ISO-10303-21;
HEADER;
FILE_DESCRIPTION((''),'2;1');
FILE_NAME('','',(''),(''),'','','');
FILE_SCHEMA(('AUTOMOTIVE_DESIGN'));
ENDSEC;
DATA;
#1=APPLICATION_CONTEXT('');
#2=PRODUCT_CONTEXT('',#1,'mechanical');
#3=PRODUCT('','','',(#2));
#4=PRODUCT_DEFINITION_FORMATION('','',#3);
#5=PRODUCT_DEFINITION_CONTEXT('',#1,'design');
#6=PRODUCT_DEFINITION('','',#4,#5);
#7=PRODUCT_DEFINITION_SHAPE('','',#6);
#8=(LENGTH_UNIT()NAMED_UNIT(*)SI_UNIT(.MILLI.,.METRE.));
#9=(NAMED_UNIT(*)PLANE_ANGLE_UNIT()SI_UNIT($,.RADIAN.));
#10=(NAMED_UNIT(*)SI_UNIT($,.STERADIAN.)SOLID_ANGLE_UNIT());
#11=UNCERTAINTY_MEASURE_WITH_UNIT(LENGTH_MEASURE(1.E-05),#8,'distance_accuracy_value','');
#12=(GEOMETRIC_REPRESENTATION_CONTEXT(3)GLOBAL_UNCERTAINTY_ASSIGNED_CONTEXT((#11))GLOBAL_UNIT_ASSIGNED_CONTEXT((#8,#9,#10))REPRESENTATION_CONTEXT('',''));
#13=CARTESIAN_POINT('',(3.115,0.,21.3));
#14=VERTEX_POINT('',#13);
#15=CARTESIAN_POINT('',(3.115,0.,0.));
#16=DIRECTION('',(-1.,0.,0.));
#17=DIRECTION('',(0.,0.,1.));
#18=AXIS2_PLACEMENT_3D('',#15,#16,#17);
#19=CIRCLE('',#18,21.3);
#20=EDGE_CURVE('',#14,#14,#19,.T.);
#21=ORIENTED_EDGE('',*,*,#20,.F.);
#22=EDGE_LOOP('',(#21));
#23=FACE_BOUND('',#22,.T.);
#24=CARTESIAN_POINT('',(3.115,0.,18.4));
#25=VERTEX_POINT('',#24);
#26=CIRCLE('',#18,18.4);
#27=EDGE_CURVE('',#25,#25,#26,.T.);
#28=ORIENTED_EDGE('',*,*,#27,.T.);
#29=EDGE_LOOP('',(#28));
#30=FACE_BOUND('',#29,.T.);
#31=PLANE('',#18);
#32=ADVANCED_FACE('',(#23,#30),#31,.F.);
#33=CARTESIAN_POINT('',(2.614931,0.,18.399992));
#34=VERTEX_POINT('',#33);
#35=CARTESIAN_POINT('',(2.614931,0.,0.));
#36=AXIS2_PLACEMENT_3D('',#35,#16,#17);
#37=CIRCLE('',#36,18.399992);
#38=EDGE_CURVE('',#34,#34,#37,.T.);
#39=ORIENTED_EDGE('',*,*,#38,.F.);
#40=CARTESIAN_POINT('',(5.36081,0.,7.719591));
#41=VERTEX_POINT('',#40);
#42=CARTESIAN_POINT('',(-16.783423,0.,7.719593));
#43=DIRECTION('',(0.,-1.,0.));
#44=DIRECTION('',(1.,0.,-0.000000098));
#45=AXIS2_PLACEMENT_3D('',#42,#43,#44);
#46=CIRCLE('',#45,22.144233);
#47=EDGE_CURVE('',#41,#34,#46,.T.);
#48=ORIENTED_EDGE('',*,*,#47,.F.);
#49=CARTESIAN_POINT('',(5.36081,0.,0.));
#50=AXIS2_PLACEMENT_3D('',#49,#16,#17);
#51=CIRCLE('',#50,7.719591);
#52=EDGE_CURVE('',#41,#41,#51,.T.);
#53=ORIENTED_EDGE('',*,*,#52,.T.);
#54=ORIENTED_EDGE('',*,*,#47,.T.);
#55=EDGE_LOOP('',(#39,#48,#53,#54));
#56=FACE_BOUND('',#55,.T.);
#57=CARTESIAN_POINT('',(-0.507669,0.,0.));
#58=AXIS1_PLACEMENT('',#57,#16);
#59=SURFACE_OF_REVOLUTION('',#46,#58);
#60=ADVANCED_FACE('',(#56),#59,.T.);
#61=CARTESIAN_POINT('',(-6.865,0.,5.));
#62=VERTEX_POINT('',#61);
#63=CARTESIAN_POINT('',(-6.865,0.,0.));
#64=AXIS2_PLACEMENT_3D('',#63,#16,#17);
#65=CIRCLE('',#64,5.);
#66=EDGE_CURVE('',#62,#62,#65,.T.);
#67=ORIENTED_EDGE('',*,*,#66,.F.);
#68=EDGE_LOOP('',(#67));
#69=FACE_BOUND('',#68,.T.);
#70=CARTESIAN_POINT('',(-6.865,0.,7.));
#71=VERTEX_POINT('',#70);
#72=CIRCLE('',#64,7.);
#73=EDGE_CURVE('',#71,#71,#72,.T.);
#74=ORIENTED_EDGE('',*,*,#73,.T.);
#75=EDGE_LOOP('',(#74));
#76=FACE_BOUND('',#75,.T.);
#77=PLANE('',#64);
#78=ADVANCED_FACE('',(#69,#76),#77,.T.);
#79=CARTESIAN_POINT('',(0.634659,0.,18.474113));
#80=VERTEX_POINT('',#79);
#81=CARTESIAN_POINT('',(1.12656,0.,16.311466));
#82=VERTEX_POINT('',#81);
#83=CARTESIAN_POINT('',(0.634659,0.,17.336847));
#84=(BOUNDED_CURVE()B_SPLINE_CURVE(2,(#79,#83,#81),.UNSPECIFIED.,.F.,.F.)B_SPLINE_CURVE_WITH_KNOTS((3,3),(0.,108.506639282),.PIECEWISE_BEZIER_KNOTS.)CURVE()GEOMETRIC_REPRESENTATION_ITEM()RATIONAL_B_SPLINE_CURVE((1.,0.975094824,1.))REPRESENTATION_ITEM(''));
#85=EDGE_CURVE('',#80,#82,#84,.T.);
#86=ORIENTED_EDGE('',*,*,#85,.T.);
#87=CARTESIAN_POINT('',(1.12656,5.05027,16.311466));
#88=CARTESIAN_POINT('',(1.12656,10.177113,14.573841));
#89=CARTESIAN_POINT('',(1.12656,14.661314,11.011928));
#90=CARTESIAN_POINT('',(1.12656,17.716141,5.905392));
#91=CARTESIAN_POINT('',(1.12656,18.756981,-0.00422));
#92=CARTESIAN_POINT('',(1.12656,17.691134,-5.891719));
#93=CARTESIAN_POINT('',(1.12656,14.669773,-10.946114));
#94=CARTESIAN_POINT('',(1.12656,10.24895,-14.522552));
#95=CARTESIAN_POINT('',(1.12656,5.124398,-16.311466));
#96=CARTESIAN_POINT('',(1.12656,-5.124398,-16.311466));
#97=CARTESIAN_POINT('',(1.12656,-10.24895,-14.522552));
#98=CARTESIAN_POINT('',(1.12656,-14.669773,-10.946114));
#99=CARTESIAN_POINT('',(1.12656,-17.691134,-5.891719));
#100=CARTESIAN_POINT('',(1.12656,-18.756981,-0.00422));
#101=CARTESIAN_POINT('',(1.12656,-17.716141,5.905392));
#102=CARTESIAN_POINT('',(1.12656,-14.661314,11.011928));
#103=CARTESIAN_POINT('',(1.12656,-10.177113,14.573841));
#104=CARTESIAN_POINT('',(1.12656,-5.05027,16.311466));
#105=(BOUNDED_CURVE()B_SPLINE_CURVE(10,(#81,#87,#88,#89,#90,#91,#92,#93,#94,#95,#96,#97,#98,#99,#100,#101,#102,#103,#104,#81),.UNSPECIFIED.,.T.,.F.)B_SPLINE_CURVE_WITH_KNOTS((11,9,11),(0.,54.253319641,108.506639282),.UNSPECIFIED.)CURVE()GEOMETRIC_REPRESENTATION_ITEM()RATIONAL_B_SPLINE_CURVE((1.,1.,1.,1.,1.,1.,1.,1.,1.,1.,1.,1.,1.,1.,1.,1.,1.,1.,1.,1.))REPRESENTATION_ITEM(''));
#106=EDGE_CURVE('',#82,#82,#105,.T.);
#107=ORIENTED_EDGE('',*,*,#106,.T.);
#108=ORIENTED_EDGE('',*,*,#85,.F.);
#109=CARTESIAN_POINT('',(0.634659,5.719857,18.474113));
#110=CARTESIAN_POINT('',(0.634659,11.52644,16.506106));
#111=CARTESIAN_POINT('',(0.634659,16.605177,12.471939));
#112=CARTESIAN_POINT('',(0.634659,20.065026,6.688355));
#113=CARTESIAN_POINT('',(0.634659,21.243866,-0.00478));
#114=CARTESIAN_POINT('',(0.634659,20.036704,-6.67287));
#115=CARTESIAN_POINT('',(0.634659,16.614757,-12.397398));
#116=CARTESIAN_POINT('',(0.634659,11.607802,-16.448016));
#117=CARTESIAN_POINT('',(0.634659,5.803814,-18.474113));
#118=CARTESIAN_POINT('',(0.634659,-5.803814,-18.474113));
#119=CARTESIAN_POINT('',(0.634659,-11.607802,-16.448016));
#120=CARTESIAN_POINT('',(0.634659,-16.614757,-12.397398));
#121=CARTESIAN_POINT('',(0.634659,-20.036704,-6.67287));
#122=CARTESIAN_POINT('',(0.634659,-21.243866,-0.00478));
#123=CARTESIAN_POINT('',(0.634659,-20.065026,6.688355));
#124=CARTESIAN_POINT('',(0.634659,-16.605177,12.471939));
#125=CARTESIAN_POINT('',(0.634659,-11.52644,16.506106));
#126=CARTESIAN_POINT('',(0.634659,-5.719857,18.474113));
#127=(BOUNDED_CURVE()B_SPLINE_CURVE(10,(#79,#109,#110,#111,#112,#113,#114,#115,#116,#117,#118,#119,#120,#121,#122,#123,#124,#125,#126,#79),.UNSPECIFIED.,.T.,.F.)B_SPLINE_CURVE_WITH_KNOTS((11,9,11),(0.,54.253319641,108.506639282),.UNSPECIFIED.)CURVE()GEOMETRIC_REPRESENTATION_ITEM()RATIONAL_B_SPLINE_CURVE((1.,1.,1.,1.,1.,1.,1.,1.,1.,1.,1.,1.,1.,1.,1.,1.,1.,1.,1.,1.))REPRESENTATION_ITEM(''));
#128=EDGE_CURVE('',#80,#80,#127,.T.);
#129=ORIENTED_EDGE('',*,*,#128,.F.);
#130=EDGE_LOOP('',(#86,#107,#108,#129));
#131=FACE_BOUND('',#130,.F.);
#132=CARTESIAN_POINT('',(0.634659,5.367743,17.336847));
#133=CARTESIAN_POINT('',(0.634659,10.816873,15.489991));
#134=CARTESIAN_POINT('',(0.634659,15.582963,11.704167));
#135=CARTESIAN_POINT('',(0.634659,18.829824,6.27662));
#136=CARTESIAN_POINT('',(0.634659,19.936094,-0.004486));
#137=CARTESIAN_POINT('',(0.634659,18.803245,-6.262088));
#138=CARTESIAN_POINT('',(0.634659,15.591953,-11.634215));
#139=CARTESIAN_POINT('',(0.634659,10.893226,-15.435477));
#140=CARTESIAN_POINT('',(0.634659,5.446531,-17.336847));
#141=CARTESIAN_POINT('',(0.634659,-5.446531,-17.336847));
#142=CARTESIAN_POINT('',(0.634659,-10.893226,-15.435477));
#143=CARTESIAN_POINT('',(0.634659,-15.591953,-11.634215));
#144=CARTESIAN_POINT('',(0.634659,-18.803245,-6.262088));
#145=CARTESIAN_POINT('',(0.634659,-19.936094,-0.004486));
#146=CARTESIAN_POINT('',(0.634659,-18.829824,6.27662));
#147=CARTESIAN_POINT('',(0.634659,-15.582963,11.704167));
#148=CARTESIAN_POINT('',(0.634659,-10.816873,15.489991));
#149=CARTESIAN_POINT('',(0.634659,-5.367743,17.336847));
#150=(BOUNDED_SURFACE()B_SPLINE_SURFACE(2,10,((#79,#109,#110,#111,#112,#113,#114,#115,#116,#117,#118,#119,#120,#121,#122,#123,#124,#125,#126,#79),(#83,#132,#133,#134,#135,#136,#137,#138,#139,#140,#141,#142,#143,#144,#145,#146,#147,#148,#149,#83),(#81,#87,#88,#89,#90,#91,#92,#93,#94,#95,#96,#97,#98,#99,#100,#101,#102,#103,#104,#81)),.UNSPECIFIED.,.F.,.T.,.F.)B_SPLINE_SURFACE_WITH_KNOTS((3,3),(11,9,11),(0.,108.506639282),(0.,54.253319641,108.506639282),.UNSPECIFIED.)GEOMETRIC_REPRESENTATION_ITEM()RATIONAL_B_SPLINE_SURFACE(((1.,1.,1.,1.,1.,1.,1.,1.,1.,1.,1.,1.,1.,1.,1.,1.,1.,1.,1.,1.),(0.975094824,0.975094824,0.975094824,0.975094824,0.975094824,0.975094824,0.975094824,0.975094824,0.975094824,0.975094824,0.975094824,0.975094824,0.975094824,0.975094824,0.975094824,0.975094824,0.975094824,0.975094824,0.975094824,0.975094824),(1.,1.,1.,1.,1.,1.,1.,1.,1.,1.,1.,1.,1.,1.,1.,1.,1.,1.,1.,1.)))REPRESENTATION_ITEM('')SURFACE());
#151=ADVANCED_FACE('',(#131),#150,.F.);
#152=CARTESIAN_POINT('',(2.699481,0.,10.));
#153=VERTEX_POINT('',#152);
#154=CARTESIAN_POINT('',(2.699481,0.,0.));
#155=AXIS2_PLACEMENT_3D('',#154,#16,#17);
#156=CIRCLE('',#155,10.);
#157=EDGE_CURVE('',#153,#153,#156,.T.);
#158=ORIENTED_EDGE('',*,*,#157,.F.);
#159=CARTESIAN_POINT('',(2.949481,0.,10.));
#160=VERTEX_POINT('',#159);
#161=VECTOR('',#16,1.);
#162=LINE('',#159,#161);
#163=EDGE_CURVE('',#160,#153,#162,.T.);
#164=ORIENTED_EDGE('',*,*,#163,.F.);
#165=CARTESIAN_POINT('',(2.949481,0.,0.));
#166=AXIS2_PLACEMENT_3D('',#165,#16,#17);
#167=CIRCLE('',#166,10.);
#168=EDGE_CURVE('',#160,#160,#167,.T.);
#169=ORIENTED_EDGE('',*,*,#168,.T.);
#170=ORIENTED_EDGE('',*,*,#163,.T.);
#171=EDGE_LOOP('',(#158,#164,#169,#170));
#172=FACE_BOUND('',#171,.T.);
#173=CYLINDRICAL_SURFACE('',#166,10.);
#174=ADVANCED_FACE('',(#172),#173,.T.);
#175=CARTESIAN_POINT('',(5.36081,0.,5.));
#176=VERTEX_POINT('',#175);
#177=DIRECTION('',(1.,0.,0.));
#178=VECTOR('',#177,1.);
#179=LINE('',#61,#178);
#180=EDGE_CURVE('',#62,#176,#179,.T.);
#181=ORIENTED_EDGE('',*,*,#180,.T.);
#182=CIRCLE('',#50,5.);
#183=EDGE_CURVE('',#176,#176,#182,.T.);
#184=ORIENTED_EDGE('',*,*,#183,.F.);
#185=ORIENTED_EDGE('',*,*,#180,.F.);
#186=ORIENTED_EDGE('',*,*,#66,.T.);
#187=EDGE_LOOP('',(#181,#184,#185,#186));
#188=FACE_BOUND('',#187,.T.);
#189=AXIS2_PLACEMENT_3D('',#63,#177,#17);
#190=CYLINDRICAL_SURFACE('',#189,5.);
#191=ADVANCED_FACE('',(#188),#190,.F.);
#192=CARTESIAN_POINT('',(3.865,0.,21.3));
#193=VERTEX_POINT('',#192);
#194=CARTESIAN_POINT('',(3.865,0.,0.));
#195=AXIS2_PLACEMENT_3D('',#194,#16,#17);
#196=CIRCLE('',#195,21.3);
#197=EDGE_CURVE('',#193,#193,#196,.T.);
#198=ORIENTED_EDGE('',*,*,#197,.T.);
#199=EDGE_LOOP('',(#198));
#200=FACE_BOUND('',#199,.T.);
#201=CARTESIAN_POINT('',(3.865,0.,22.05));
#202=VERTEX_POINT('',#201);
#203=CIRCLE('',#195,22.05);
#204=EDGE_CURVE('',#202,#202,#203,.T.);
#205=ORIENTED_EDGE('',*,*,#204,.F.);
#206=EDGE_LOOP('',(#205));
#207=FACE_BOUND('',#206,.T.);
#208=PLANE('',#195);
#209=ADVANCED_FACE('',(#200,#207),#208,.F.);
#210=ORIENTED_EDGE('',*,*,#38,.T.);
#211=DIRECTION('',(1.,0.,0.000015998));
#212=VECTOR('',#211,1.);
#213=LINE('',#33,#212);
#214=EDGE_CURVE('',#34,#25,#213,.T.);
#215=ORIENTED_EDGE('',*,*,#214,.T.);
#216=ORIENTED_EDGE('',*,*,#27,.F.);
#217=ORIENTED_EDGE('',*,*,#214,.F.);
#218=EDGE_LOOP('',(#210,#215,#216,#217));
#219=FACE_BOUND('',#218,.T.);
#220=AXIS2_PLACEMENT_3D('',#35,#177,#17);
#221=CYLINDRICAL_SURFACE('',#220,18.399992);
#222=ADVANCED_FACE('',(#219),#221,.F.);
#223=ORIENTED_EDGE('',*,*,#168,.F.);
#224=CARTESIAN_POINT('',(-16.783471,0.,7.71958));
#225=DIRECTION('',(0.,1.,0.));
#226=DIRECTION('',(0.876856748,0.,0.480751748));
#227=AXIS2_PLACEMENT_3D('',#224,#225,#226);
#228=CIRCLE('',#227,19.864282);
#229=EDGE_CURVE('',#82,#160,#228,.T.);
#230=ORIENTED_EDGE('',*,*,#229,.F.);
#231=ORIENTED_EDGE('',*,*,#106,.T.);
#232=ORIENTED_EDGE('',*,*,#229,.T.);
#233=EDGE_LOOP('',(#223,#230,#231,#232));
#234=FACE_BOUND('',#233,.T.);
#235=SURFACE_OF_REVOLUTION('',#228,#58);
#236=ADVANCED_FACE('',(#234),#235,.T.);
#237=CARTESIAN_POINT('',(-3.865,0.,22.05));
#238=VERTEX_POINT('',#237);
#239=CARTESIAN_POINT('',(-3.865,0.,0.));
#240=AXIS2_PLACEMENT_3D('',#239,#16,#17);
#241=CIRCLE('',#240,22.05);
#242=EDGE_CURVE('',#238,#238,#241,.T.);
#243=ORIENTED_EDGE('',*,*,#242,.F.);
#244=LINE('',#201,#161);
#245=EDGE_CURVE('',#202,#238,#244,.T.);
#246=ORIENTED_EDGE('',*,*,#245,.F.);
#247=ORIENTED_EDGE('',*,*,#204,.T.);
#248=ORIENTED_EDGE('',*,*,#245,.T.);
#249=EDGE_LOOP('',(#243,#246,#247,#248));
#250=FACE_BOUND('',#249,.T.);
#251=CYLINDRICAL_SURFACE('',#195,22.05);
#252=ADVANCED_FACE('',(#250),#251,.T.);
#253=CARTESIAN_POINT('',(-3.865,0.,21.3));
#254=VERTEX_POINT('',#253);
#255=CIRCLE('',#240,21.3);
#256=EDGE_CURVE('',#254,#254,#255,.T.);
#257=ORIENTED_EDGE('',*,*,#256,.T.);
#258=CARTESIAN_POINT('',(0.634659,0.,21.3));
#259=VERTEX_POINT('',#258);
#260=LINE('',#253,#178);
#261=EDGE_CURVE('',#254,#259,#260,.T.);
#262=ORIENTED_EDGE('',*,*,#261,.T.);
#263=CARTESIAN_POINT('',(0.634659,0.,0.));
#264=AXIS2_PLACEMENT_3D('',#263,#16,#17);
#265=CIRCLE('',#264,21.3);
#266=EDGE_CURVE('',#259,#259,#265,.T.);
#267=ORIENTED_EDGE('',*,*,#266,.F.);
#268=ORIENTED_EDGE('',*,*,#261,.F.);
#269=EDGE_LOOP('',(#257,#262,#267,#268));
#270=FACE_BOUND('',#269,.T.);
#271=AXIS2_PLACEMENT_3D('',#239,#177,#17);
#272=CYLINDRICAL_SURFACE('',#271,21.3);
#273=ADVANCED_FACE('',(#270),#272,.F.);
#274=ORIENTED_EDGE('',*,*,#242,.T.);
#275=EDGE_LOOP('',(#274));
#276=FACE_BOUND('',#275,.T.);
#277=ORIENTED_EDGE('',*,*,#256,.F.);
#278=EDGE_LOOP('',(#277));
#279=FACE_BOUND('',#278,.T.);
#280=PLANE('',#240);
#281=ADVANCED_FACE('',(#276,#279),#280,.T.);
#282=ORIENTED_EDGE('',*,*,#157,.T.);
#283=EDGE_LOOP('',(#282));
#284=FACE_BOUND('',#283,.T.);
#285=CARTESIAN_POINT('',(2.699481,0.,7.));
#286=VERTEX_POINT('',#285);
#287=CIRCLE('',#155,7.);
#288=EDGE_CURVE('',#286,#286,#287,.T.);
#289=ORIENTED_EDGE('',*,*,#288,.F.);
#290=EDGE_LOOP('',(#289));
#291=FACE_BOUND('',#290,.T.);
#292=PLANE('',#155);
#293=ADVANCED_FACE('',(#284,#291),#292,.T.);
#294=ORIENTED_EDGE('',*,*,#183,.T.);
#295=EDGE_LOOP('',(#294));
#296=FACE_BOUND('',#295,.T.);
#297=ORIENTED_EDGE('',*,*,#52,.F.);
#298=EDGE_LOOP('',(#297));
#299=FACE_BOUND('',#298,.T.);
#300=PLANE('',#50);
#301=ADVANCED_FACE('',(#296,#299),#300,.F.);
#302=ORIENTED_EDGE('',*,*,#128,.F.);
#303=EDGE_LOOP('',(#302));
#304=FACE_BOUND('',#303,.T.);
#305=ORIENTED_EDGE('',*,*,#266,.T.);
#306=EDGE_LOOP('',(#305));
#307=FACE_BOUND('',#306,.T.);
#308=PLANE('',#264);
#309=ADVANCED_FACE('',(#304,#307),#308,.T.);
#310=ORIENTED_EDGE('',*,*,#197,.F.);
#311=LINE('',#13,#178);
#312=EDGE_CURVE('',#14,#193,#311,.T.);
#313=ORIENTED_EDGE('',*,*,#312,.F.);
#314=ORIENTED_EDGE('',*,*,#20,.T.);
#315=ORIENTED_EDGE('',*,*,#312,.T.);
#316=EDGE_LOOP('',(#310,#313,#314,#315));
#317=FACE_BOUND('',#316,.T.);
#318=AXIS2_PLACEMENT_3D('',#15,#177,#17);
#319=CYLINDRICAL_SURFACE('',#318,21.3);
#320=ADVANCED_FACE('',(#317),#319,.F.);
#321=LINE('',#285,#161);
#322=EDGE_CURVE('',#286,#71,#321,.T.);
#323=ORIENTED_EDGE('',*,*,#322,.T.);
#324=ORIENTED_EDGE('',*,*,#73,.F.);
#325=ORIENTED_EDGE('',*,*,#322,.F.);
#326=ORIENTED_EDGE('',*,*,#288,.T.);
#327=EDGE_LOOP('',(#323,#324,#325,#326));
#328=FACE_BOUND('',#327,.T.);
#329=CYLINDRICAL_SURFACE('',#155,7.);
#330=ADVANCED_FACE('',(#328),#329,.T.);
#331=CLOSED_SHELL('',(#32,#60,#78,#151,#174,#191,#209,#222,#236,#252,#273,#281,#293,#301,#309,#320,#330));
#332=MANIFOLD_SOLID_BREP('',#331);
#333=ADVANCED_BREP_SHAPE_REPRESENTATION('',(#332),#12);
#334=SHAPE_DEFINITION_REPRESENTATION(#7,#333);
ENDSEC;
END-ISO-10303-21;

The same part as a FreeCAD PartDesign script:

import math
import FreeCAD as App
import Part
import Sketcher


def edges_at(feature, points):
    """Names of the edges that pass closest to the given points."""
    edges = feature.Shape.Edges
    near = lambda p: min(range(len(edges)), key=lambda i: edges[i].distToShape(Part.Vertex(*p))[0])
    return sorted({f"Edge{near(p) + 1}" for p in points})

doc = App.newDocument("Part")
body = doc.addObject("PartDesign::Body", "Body")

sketch1 = body.newObject("Sketcher::SketchObject", "Sketch")
sketch1.AttachmentSupport = (doc.getObject("XZ_Plane"), [""])
sketch1.MapMode = "FlatFace"
sketch1.addGeometry([
    Part.LineSegment(App.Vector(3.865, 21.3, 0), App.Vector(3.865, 22.05, 0)),
    Part.LineSegment(App.Vector(3.865, 22.05, 0), App.Vector(-3.865, 22.05, 0)),
    Part.LineSegment(App.Vector(-3.865, 22.05, 0), App.Vector(-3.865, 21.3, 0)),
    Part.LineSegment(App.Vector(-3.865, 21.3, 0), App.Vector(0.634659, 21.3, 0)),
    Part.LineSegment(App.Vector(0.634659, 21.3, 0), App.Vector(0.634659, 17.269368, 0)),
    Part.ArcOfCircle(Part.Circle(App.Vector(-16.783471, 7.71958, 0), App.Vector(0, 0, 1), 19.864282), math.radians(6.592092), math.radians(28.734511)),
    Part.LineSegment(App.Vector(2.949481, 10, 0), App.Vector(2.699481, 10, 0)),
    Part.LineSegment(App.Vector(2.699481, 10, 0), App.Vector(2.699481, 7, 0)),
    Part.LineSegment(App.Vector(2.699481, 7, 0), App.Vector(-6.865, 7, 0)),
    Part.LineSegment(App.Vector(-6.865, 7, 0), App.Vector(-6.865, 5, 0)),
    Part.LineSegment(App.Vector(-6.865, 5, 0), App.Vector(5.36081, 5, 0)),
    Part.LineSegment(App.Vector(5.36081, 5, 0), App.Vector(5.36081, 7.719591, 0)),
    Part.ArcOfCircle(Part.Circle(App.Vector(-16.783423, 7.719593, 0), App.Vector(0, 0, 1), 22.144233), math.radians(-0.000006), math.radians(28.836421)),
    Part.LineSegment(App.Vector(2.614931, 18.399992, 0), App.Vector(3.115, 18.4, 0)),
    Part.LineSegment(App.Vector(3.115, 18.4, 0), App.Vector(3.115, 21.3, 0)),
    Part.LineSegment(App.Vector(3.115, 21.3, 0), App.Vector(3.865, 21.3, 0)),
], False)
sketch1.addConstraint([
    Sketcher.Constraint("Coincident", 0, 2, 1, 1),
    Sketcher.Constraint("Coincident", 1, 2, 2, 1),
    Sketcher.Constraint("Coincident", 2, 2, 3, 1),
    Sketcher.Constraint("Coincident", 3, 2, 4, 1),
    Sketcher.Constraint("Coincident", 4, 2, 5, 2),
    Sketcher.Constraint("Coincident", 5, 1, 6, 1),
    Sketcher.Constraint("Coincident", 6, 2, 7, 1),
    Sketcher.Constraint("Coincident", 7, 2, 8, 1),
    Sketcher.Constraint("Coincident", 8, 2, 9, 1),
    Sketcher.Constraint("Coincident", 9, 2, 10, 1),
    Sketcher.Constraint("Coincident", 10, 2, 11, 1),
    Sketcher.Constraint("Tangent", 11, 2, 12, 1),
    Sketcher.Constraint("Coincident", 12, 2, 13, 1),
    Sketcher.Constraint("Coincident", 13, 2, 14, 1),
    Sketcher.Constraint("Coincident", 14, 2, 15, 1),
    Sketcher.Constraint("Coincident", 15, 2, 0, 1),
    Sketcher.Constraint("Vertical", 0),
    Sketcher.Constraint("Horizontal", 1),
    Sketcher.Constraint("Vertical", 2),
    Sketcher.Constraint("Horizontal", 3),
    Sketcher.Constraint("Vertical", 4),
    Sketcher.Constraint("Horizontal", 6),
    Sketcher.Constraint("Vertical", 7),
    Sketcher.Constraint("Horizontal", 8),
    Sketcher.Constraint("Vertical", 9),
    Sketcher.Constraint("Horizontal", 10),
    Sketcher.Constraint("Vertical", 11),
    Sketcher.Constraint("Vertical", 14),
    Sketcher.Constraint("Horizontal", 15),
    Sketcher.Constraint("Symmetric", 2, 2, 15, 2, -2),
    Sketcher.Constraint("Equal", 15, 0),
    Sketcher.Constraint("DistanceY", 7, 2, 7, 1, 3.0),
    Sketcher.Constraint("DistanceY", 9, 2, 9, 1, 2.0),
    Sketcher.Constraint("DistanceY", 14, 1, 14, 2, 2.9),
    Sketcher.Constraint("DistanceY", -1, 1, 5, 1, 10.0),
    Sketcher.Constraint("DistanceX", 1, 2, 1, 1, 7.73),
    Sketcher.Constraint("DistanceX", 6, 2, 6, 1, 0.25),
    Sketcher.Constraint("DistanceX", 15, 1, 15, 2, 0.75),
    Sketcher.Constraint("DistanceY", -1, 1, 2, 2, 21.3),
    Sketcher.Constraint("DistanceX", 8, 2, -1, 1, 6.865),
    Sketcher.Constraint("Radius", 5, 19.864282),
    Sketcher.Constraint("Radius", 12, 22.144233),
    Sketcher.Constraint("DistanceX", 3, 1, 3, 2, 4.499659),
    Sketcher.Constraint("DistanceX", 8, 2, 8, 1, 9.564481),
    Sketcher.Constraint("DistanceX", 10, 1, 10, 2, 12.22581),
    Sketcher.Constraint("DistanceY", 11, 1, 11, 2, 2.719591),
    Sketcher.Constraint("Distance", 13, 0.500069),
    Sketcher.Constraint("DistanceY", 4, 2, 4, 1, 4.030632),
])
revolution = body.newObject("PartDesign::Revolution", "Revolution")
revolution.Profile = sketch1
revolution.ReferenceAxis = (sketch1, ["H_Axis"])
revolution.Angle = 360
doc.recompute()

fillet = body.newObject("PartDesign::Fillet", "Fillet")
fillet.Base = (revolution, edges_at(revolution, [(0.635, 0, -17.269)]))
fillet.Radius = 5

doc.recompute()
